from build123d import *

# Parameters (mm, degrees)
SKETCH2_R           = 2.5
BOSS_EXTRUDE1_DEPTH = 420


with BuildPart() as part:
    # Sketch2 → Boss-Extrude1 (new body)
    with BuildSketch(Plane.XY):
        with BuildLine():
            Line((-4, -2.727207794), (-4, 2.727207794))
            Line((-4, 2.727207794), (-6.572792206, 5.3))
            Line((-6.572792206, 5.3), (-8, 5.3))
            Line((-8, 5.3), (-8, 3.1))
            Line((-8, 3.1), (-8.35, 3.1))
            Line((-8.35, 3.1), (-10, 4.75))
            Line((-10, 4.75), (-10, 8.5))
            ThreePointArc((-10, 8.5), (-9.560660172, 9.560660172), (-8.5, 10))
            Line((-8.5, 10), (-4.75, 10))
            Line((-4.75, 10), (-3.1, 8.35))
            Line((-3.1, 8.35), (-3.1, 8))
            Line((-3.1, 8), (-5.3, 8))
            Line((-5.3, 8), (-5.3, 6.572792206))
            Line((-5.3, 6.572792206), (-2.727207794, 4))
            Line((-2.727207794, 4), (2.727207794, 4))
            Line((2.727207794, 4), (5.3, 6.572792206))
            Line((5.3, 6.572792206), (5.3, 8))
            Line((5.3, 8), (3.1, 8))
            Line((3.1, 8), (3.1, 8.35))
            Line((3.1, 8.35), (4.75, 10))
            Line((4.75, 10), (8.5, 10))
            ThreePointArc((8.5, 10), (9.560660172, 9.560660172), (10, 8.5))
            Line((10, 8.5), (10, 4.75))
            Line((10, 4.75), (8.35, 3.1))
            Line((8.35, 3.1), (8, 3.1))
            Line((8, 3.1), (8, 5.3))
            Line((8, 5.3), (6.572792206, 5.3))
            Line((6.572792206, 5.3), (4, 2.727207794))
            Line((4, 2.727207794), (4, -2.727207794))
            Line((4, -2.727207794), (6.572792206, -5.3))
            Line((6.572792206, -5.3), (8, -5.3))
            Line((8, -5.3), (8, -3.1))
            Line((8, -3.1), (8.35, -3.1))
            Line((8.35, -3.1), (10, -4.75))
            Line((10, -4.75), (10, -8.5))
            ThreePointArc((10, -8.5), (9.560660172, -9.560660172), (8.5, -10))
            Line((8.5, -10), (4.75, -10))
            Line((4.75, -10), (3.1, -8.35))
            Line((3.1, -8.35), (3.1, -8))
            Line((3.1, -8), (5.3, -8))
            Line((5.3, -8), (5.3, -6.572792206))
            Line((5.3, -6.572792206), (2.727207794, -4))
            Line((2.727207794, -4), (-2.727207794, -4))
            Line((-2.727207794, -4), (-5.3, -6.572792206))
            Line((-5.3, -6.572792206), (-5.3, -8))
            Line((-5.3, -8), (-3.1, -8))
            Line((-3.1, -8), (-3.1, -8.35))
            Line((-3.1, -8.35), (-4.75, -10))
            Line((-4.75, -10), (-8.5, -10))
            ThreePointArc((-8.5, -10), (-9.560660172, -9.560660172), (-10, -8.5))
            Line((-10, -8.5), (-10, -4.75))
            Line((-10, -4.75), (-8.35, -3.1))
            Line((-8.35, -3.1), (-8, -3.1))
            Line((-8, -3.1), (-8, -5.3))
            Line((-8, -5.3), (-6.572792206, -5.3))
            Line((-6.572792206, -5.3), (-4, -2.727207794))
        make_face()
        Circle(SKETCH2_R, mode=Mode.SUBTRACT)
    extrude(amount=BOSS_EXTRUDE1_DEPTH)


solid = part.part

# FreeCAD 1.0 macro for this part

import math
import FreeCAD as App
import Part
import Sketcher

V = App.Vector
Q = App.Units.Quantity

doc = App.newDocument("Part")
params = doc.addObject("Spreadsheet::Sheet", "Params")
for row, (alias, value) in enumerate([
    ("sketch1_diameter", "5 mm"),
    ("sketch1_radius", "1.5 mm"),
    ("sketch1_width", "2.2 mm"),
    ("sketch1_width2", "0.35 mm"),
    ("sketch1_width3", "3.75 mm"),
    ("pad1_length", "420 mm"),
], start=1):
    params.set(f"A{row}", alias)
    params.set(f"B{row}", "=" + value)
    params.setAlias(f"B{row}", alias)

body = doc.addObject("PartDesign::Body", "Body")

# Sketch on XY plane
sketch1 = body.newObject("Sketcher::SketchObject", "Sketch")
sketch1.AttachmentSupport = (doc.getObject("XY_Plane"), [""])
sketch1.MapMode = "FlatFace"
sketch1.addGeometry(Part.LineSegment(V(-4, 2.73, 0), V(-4, -2.73, 0)), False)
sketch1.addGeometry(Part.LineSegment(V(-4, -2.73, 0), V(-6.57, -5.3, 0)), False)
sketch1.addGeometry(Part.LineSegment(V(-6.57, -5.3, 0), V(-8, -5.3, 0)), False)
sketch1.addGeometry(Part.LineSegment(V(-8, -5.3, 0), V(-8, -3.1, 0)), False)
sketch1.addGeometry(Part.LineSegment(V(-8, -3.1, 0), V(-8.35, -3.1, 0)), False)
sketch1.addGeometry(Part.LineSegment(V(-8.35, -3.1, 0), V(-10, -4.75, 0)), False)
sketch1.addGeometry(Part.LineSegment(V(-10, -4.75, 0), V(-10, -8.5, 0)), False)
sketch1.addGeometry(Part.ArcOfCircle(Part.Circle(V(-8.5, -8.5, 0), V(0, 0, 1), 1.5), math.radians(180), math.radians(270)), False)
sketch1.addGeometry(Part.LineSegment(V(-8.5, -10, 0), V(-4.75, -10, 0)), False)
sketch1.addGeometry(Part.LineSegment(V(-4.75, -10, 0), V(-3.1, -8.35, 0)), False)
sketch1.addGeometry(Part.LineSegment(V(-3.1, -8.35, 0), V(-3.1, -8, 0)), False)
sketch1.addGeometry(Part.LineSegment(V(-3.1, -8, 0), V(-5.3, -8, 0)), False)
sketch1.addGeometry(Part.LineSegment(V(-5.3, -8, 0), V(-5.3, -6.57, 0)), False)
sketch1.addGeometry(Part.LineSegment(V(-5.3, -6.57, 0), V(-2.73, -4, 0)), False)
sketch1.addGeometry(Part.LineSegment(V(-2.73, -4, 0), V(2.73, -4, 0)), False)
sketch1.addGeometry(Part.LineSegment(V(2.73, -4, 0), V(5.3, -6.57, 0)), False)
sketch1.addGeometry(Part.LineSegment(V(5.3, -6.57, 0), V(5.3, -8, 0)), False)
sketch1.addGeometry(Part.LineSegment(V(5.3, -8, 0), V(3.1, -8, 0)), False)
sketch1.addGeometry(Part.LineSegment(V(3.1, -8, 0), V(3.1, -8.35, 0)), False)
sketch1.addGeometry(Part.LineSegment(V(3.1, -8.35, 0), V(4.75, -10, 0)), False)
sketch1.addGeometry(Part.LineSegment(V(4.75, -10, 0), V(8.5, -10, 0)), False)
sketch1.addGeometry(Part.ArcOfCircle(Part.Circle(V(8.5, -8.5, 0), V(0, 0, 1), 1.5), math.radians(-90), math.radians(0)), False)
sketch1.addGeometry(Part.LineSegment(V(10, -8.5, 0), V(10, -4.75, 0)), False)
sketch1.addGeometry(Part.LineSegment(V(10, -4.75, 0), V(8.35, -3.1, 0)), False)
sketch1.addGeometry(Part.LineSegment(V(8.35, -3.1, 0), V(8, -3.1, 0)), False)
sketch1.addGeometry(Part.LineSegment(V(8, -3.1, 0), V(8, -5.3, 0)), False)
sketch1.addGeometry(Part.LineSegment(V(8, -5.3, 0), V(6.57, -5.3, 0)), False)
sketch1.addGeometry(Part.LineSegment(V(6.57, -5.3, 0), V(4, -2.73, 0)), False)
sketch1.addGeometry(Part.LineSegment(V(4, -2.73, 0), V(4, 2.73, 0)), False)
sketch1.addGeometry(Part.LineSegment(V(4, 2.73, 0), V(6.57, 5.3, 0)), False)
sketch1.addGeometry(Part.LineSegment(V(6.57, 5.3, 0), V(8, 5.3, 0)), False)
sketch1.addGeometry(Part.LineSegment(V(8, 5.3, 0), V(8, 3.1, 0)), False)
sketch1.addGeometry(Part.LineSegment(V(8, 3.1, 0), V(8.35, 3.1, 0)), False)
sketch1.addGeometry(Part.LineSegment(V(8.35, 3.1, 0), V(10, 4.75, 0)), False)
sketch1.addGeometry(Part.LineSegment(V(10, 4.75, 0), V(10, 8.5, 0)), False)
sketch1.addGeometry(Part.ArcOfCircle(Part.Circle(V(8.5, 8.5, 0), V(0, 0, 1), 1.5), math.radians(0), math.radians(90)), False)
sketch1.addGeometry(Part.LineSegment(V(8.5, 10, 0), V(4.75, 10, 0)), False)
sketch1.addGeometry(Part.LineSegment(V(4.75, 10, 0), V(3.1, 8.35, 0)), False)
sketch1.addGeometry(Part.LineSegment(V(3.1, 8.35, 0), V(3.1, 8, 0)), False)
sketch1.addGeometry(Part.LineSegment(V(3.1, 8, 0), V(5.3, 8, 0)), False)
sketch1.addGeometry(Part.LineSegment(V(5.3, 8, 0), V(5.3, 6.57, 0)), False)
sketch1.addGeometry(Part.LineSegment(V(5.3, 6.57, 0), V(2.73, 4, 0)), False)
sketch1.addGeometry(Part.LineSegment(V(2.73, 4, 0), V(-2.73, 4, 0)), False)
sketch1.addGeometry(Part.LineSegment(V(-2.73, 4, 0), V(-5.3, 6.57, 0)), False)
sketch1.addGeometry(Part.LineSegment(V(-5.3, 6.57, 0), V(-5.3, 8, 0)), False)
sketch1.addGeometry(Part.LineSegment(V(-5.3, 8, 0), V(-3.1, 8, 0)), False)
sketch1.addGeometry(Part.LineSegment(V(-3.1, 8, 0), V(-3.1, 8.35, 0)), False)
sketch1.addGeometry(Part.LineSegment(V(-3.1, 8.35, 0), V(-4.75, 10, 0)), False)
sketch1.addGeometry(Part.LineSegment(V(-4.75, 10, 0), V(-8.5, 10, 0)), False)
sketch1.addGeometry(Part.ArcOfCircle(Part.Circle(V(-8.5, 8.5, 0), V(0, 0, 1), 1.5), math.radians(90), math.radians(180)), False)
sketch1.addGeometry(Part.LineSegment(V(-10, 8.5, 0), V(-10, 4.75, 0)), False)
sketch1.addGeometry(Part.LineSegment(V(-10, 4.75, 0), V(-8.35, 3.1, 0)), False)
sketch1.addGeometry(Part.LineSegment(V(-8.35, 3.1, 0), V(-8, 3.1, 0)), False)
sketch1.addGeometry(Part.LineSegment(V(-8, 3.1, 0), V(-8, 5.3, 0)), False)
sketch1.addGeometry(Part.LineSegment(V(-8, 5.3, 0), V(-6.57, 5.3, 0)), False)
sketch1.addGeometry(Part.LineSegment(V(-6.57, 5.3, 0), V(-4, 2.73, 0)), False)
sketch1.addGeometry(Part.Circle(V(0, 0, 0), V(0, 0, 1), 2.5), False)
sketch1.addConstraint(Sketcher.Constraint("Coincident", 0, 2, 1, 1))
sketch1.addConstraint(Sketcher.Constraint("Coincident", 1, 2, 2, 1))
sketch1.addConstraint(Sketcher.Constraint("Coincident", 2, 2, 3, 1))
sketch1.addConstraint(Sketcher.Constraint("Coincident", 3, 2, 4, 1))
sketch1.addConstraint(Sketcher.Constraint("Coincident", 4, 2, 5, 1))
sketch1.addConstraint(Sketcher.Constraint("Coincident", 5, 2, 6, 1))
sketch1.addConstraint(Sketcher.Constraint("Tangent", 6, 2, 7, 1))
sketch1.addConstraint(Sketcher.Constraint("Tangent", 7, 2, 8, 1))
sketch1.addConstraint(Sketcher.Constraint("Coincident", 8, 2, 9, 1))
sketch1.addConstraint(Sketcher.Constraint("Coincident", 9, 2, 10, 1))
sketch1.addConstraint(Sketcher.Constraint("Coincident", 10, 2, 11, 1))
sketch1.addConstraint(Sketcher.Constraint("Coincident", 11, 2, 12, 1))
sketch1.addConstraint(Sketcher.Constraint("Coincident", 12, 2, 13, 1))
sketch1.addConstraint(Sketcher.Constraint("Coincident", 13, 2, 14, 1))
sketch1.addConstraint(Sketcher.Constraint("Coincident", 14, 2, 15, 1))
sketch1.addConstraint(Sketcher.Constraint("Coincident", 15, 2, 16, 1))
sketch1.addConstraint(Sketcher.Constraint("Coincident", 16, 2, 17, 1))
sketch1.addConstraint(Sketcher.Constraint("Coincident", 17, 2, 18, 1))
sketch1.addConstraint(Sketcher.Constraint("Coincident", 18, 2, 19, 1))
sketch1.addConstraint(Sketcher.Constraint("Coincident", 19, 2, 20, 1))
sketch1.addConstraint(Sketcher.Constraint("Tangent", 20, 2, 21, 1))
sketch1.addConstraint(Sketcher.Constraint("Tangent", 21, 2, 22, 1))
sketch1.addConstraint(Sketcher.Constraint("Coincident", 22, 2, 23, 1))
sketch1.addConstraint(Sketcher.Constraint("Coincident", 23, 2, 24, 1))
sketch1.addConstraint(Sketcher.Constraint("Coincident", 24, 2, 25, 1))
sketch1.addConstraint(Sketcher.Constraint("Coincident", 25, 2, 26, 1))
sketch1.addConstraint(Sketcher.Constraint("Coincident", 26, 2, 27, 1))
sketch1.addConstraint(Sketcher.Constraint("Coincident", 27, 2, 28, 1))
sketch1.addConstraint(Sketcher.Constraint("Coincident", 28, 2, 29, 1))
sketch1.addConstraint(Sketcher.Constraint("Coincident", 29, 2, 30, 1))
sketch1.addConstraint(Sketcher.Constraint("Coincident", 30, 2, 31, 1))
sketch1.addConstraint(Sketcher.Constraint("Coincident", 31, 2, 32, 1))
sketch1.addConstraint(Sketcher.Constraint("Coincident", 32, 2, 33, 1))
sketch1.addConstraint(Sketcher.Constraint("Coincident", 33, 2, 34, 1))
sketch1.addConstraint(Sketcher.Constraint("Tangent", 34, 2, 35, 1))
sketch1.addConstraint(Sketcher.Constraint("Tangent", 35, 2, 36, 1))
sketch1.addConstraint(Sketcher.Constraint("Coincident", 36, 2, 37, 1))
sketch1.addConstraint(Sketcher.Constraint("Coincident", 37, 2, 38, 1))
sketch1.addConstraint(Sketcher.Constraint("Coincident", 38, 2, 39, 1))
sketch1.addConstraint(Sketcher.Constraint("Coincident", 39, 2, 40, 1))
sketch1.addConstraint(Sketcher.Constraint("Coincident", 40, 2, 41, 1))
sketch1.addConstraint(Sketcher.Constraint("Coincident", 41, 2, 42, 1))
sketch1.addConstraint(Sketcher.Constraint("Coincident", 42, 2, 43, 1))
sketch1.addConstraint(Sketcher.Constraint("Coincident", 43, 2, 44, 1))
sketch1.addConstraint(Sketcher.Constraint("Coincident", 44, 2, 45, 1))
sketch1.addConstraint(Sketcher.Constraint("Coincident", 45, 2, 46, 1))
sketch1.addConstraint(Sketcher.Constraint("Coincident", 46, 2, 47, 1))
sketch1.addConstraint(Sketcher.Constraint("Coincident", 47, 2, 48, 1))
sketch1.addConstraint(Sketcher.Constraint("Tangent", 48, 2, 49, 1))
sketch1.addConstraint(Sketcher.Constraint("Tangent", 49, 2, 50, 1))
sketch1.addConstraint(Sketcher.Constraint("Coincident", 50, 2, 51, 1))
sketch1.addConstraint(Sketcher.Constraint("Coincident", 51, 2, 52, 1))
sketch1.addConstraint(Sketcher.Constraint("Coincident", 52, 2, 53, 1))
sketch1.addConstraint(Sketcher.Constraint("Coincident", 53, 2, 54, 1))
sketch1.addConstraint(Sketcher.Constraint("Coincident", 54, 2, 55, 1))
sketch1.addConstraint(Sketcher.Constraint("Coincident", 55, 2, 0, 1))
sketch1.addConstraint(Sketcher.Constraint("Vertical", 0))
sketch1.addConstraint(Sketcher.Constraint("Horizontal", 2))
sketch1.addConstraint(Sketcher.Constraint("Vertical", 3))
sketch1.addConstraint(Sketcher.Constraint("Horizontal", 4))
sketch1.addConstraint(Sketcher.Constraint("Vertical", 6))
sketch1.addConstraint(Sketcher.Constraint("Horizontal", 8))
sketch1.addConstraint(Sketcher.Constraint("Vertical", 10))
sketch1.addConstraint(Sketcher.Constraint("Horizontal", 11))
sketch1.addConstraint(Sketcher.Constraint("Vertical", 12))
sketch1.addConstraint(Sketcher.Constraint("Horizontal", 14))
sketch1.addConstraint(Sketcher.Constraint("Vertical", 16))
sketch1.addConstraint(Sketcher.Constraint("Horizontal", 17))
sketch1.addConstraint(Sketcher.Constraint("Vertical", 18))
sketch1.addConstraint(Sketcher.Constraint("Horizontal", 20))
sketch1.addConstraint(Sketcher.Constraint("Vertical", 22))
sketch1.addConstraint(Sketcher.Constraint("Horizontal", 24))
sketch1.addConstraint(Sketcher.Constraint("Vertical", 25))
sketch1.addConstraint(Sketcher.Constraint("Horizontal", 26))
sketch1.addConstraint(Sketcher.Constraint("Vertical", 28))
sketch1.addConstraint(Sketcher.Constraint("Horizontal", 30))
sketch1.addConstraint(Sketcher.Constraint("Vertical", 31))
sketch1.addConstraint(Sketcher.Constraint("Horizontal", 32))
sketch1.addConstraint(Sketcher.Constraint("Vertical", 34))
sketch1.addConstraint(Sketcher.Constraint("Horizontal", 36))
sketch1.addConstraint(Sketcher.Constraint("Vertical", 38))
sketch1.addConstraint(Sketcher.Constraint("Horizontal", 39))
sketch1.addConstraint(Sketcher.Constraint("Vertical", 40))
sketch1.addConstraint(Sketcher.Constraint("Horizontal", 42))
sketch1.addConstraint(Sketcher.Constraint("Vertical", 44))
sketch1.addConstraint(Sketcher.Constraint("Horizontal", 45))
sketch1.addConstraint(Sketcher.Constraint("Vertical", 46))
sketch1.addConstraint(Sketcher.Constraint("Horizontal", 48))
sketch1.addConstraint(Sketcher.Constraint("Vertical", 50))
sketch1.addConstraint(Sketcher.Constraint("Horizontal", 52))
sketch1.addConstraint(Sketcher.Constraint("Vertical", 53))
sketch1.addConstraint(Sketcher.Constraint("Horizontal", 54))
sketch1.addConstraint(Sketcher.Constraint("Coincident", 56, 3, -1, 1))
sketch1.addConstraint(Sketcher.Constraint("Equal", 7, 21))
sketch1.addConstraint(Sketcher.Constraint("Equal", 21, 35))
sketch1.addConstraint(Sketcher.Constraint("Equal", 35, 49))
sketch1.addConstraint(Sketcher.Constraint("Symmetric", 7, 3, 35, 3, -1, 1))
sketch1.addConstraint(Sketcher.Constraint("Symmetric", 21, 3, 49, 3, -1, 1))
sketch1.addConstraint(Sketcher.Constraint("Symmetric", 0, 2, 28, 2, -1, 1))
sketch1.addConstraint(Sketcher.Constraint("Symmetric", 1, 2, 29, 2, -1, 1))
sketch1.addConstraint(Sketcher.Constraint("Symmetric", 3, 2, 31, 2, -1, 1))
sketch1.addConstraint(Sketcher.Constraint("Symmetric", 9, 2, 37, 2, -1, 1))
sketch1.addConstraint(Sketcher.Constraint("Symmetric", 11, 2, 39, 2, -1, 1))
sketch1.addConstraint(Sketcher.Constraint("Symmetric", 13, 2, 41, 2, -1, 1))
sketch1.addConstraint(Sketcher.Constraint("Symmetric", 15, 2, 43, 2, -1, 1))
sketch1.addConstraint(Sketcher.Constraint("Symmetric", 17, 2, 45, 2, -1, 1))
sketch1.addConstraint(Sketcher.Constraint("Symmetric", 23, 2, 51, 2, -1, 1))
sketch1.addConstraint(Sketcher.Constraint("Symmetric", 25, 2, 53, 2, -1, 1))
sketch1.addConstraint(Sketcher.Constraint("Symmetric", 7, 3, 21, 3, -2))
sketch1.addConstraint(Sketcher.Constraint("Symmetric", 12, 2, 15, 2, -2))
sketch1.addConstraint(Sketcher.Constraint("Symmetric", 10, 2, 17, 2, -2))
sketch1.addConstraint(Sketcher.Constraint("Symmetric", 4, 2, 23, 2, -2))
sketch1.addConstraint(Sketcher.Constraint("Symmetric", 2, 2, 25, 2, -2))
sketch1.addConstraint(Sketcher.Constraint("Parallel", 1, 5))
sketch1.addConstraint(Sketcher.Constraint("Parallel", 5, 9))
sketch1.addConstraint(Sketcher.Constraint("Parallel", 9, 13))
sketch1.addConstraint(Sketcher.Constraint("Perpendicular", 13, 15))
sketch1.addConstraint(Sketcher.Constraint("Parallel", 15, 19))
sketch1.addConstraint(Sketcher.Constraint("Parallel", 19, 23))
sketch1.addConstraint(Sketcher.Constraint("Parallel", 23, 27))
sketch1.addConstraint(Sketcher.Constraint("Parallel", 29, 33))
sketch1.addConstraint(Sketcher.Constraint("Parallel", 33, 37))
sketch1.addConstraint(Sketcher.Constraint("Parallel", 37, 41))
sketch1.addConstraint(Sketcher.Constraint("Perpendicular", 41, 43))
sketch1.addConstraint(Sketcher.Constraint("Parallel", 43, 47))
sketch1.addConstraint(Sketcher.Constraint("Parallel", 47, 51))
sketch1.addConstraint(Sketcher.Constraint("Parallel", 51, 55))
sketch1.addConstraint(Sketcher.Constraint("Horizontal", 9, 2, 18, 2))
sketch1.addConstraint(Sketcher.Constraint("Horizontal", 5, 2, 22, 2))
sketch1.addConstraint(Sketcher.Constraint("Horizontal", 0, 2, 27, 2))
sketch1.addConstraint(Sketcher.Constraint("Horizontal", 37, 2, 46, 2))
sketch1.addConstraint(Sketcher.Constraint("Horizontal", 33, 2, 50, 2))
sketch1.addConstraint(Sketcher.Constraint("Horizontal", 28, 2, 55, 2))
sketch1.addConstraint(Sketcher.Constraint("Equal", 42, 0))
sketch1.addConstraint(Sketcher.Constraint("Equal", 45, 3))
sketch1.addConstraint(Sketcher.Constraint("Equal", 48, 6))
sketch1.addConstraint(Sketcher.Constraint("Equal", 52, 10))
sketch1.addConstraint(Sketcher.Constraint("Equal", 54, 12))
sketch1.addConstraint(Sketcher.Constraint("Equal", 5, 9))
sketch1.addConstraint(Sketcher.Constraint("Equal", 1, 13))
sketch1.addConstraint(Sketcher.Constraint("Diameter", 56, Q("5 mm")))
sketch1.addConstraint(Sketcher.Constraint("Radius", 7, Q("1.5 mm")))
sketch1.addConstraint(Sketcher.Constraint("DistanceX", 11, 2, 11, 1, Q("2.2 mm")))
sketch1.addConstraint(Sketcher.Constraint("DistanceX", 0, 2, -1, 1, Q("4 mm")))
sketch1.addConstraint(Sketcher.Constraint("DistanceX", 2, 2, -1, 1, Q("8 mm")))
sketch1.addConstraint(Sketcher.Constraint("DistanceX", 5, 2, -1, 1, Q("10 mm")))
sketch1.addConstraint(Sketcher.Constraint("DistanceX", 4, 2, 4, 1, Q("0.35 mm")))
sketch1.addConstraint(Sketcher.Constraint("DistanceX", 8, 1, 8, 2, Q("3.75 mm")))
sketch1.addConstraint(Sketcher.Constraint("DistanceX", 2, 2, 2, 1, Q("1.427208 mm")))
sketch1.setExpression("Constraints[140]", "Params.sketch1_diameter")
sketch1.setExpression("Constraints[141]", "Params.sketch1_radius")
sketch1.setExpression("Constraints[142]", "Params.sketch1_width")
sketch1.setExpression("Constraints[146]", "Params.sketch1_width2")
sketch1.setExpression("Constraints[147]", "Params.sketch1_width3")
pad1 = body.newObject("PartDesign::Pad", "Pad")
pad1.Profile = sketch1
pad1.setExpression("Length", "Params.pad1_length")

doc.recompute()
